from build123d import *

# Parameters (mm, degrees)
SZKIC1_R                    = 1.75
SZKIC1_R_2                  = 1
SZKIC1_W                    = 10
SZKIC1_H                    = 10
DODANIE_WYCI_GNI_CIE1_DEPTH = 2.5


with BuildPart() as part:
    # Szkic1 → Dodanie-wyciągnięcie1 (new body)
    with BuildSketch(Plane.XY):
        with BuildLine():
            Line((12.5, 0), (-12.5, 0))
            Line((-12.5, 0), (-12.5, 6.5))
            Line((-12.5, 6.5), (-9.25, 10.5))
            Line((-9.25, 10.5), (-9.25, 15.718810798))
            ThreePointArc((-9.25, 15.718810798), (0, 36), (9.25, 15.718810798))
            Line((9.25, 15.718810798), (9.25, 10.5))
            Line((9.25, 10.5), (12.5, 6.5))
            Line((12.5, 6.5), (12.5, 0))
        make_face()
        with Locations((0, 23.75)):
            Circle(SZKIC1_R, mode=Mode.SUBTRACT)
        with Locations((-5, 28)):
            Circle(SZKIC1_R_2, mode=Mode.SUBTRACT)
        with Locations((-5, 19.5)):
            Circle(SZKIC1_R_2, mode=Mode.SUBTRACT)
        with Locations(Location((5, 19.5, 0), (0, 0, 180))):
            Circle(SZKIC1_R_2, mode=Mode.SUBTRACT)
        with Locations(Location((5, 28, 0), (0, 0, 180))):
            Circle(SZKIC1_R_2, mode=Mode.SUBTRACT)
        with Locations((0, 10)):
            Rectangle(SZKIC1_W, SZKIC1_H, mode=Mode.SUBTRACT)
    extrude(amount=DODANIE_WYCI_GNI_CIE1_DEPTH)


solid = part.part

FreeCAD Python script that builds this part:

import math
import FreeCAD as App
import Part
import Sketcher
from FreeCAD import Vector


def add_polygon(sketch, points):
    """Adds a closed chain of lines whose ends are joined by coincident constraints."""
    first, n = sketch.GeometryCount, len(points)
    for a, b in zip(points, points[1:] + points[:1]):
        sketch.addGeometry(Part.LineSegment(App.Vector(*a, 0), App.Vector(*b, 0)), False)
    for i in range(n):
        sketch.addConstraint(Sketcher.Constraint("Coincident", first + i, 2, first + (i + 1) % n, 1))

doc = App.newDocument("Part")
body = doc.addObject("PartDesign::Body", "Body")

# Sketch on XY plane
sketch1 = body.newObject("Sketcher::SketchObject", "Sketch")
sketch1.AttachmentSupport = (doc.getObject("XY_Plane"), [""])
sketch1.MapMode = "FlatFace"
sketch1.addGeometry(Part.LineSegment(Vector(-12.5, 0, 0), Vector(12.5, 0, 0)), False)  # 0
sketch1.addGeometry(Part.LineSegment(Vector(12.5, 0, 0), Vector(12.5, 6.5, 0)), False)  # 1
sketch1.addGeometry(Part.LineSegment(Vector(12.5, 6.5, 0), Vector(9.2, 10.5, 0)), False)  # 2
sketch1.addGeometry(Part.LineSegment(Vector(9.2, 10.5, 0), Vector(9.2, 15.7, 0)), False)  # 3
sketch1.addGeometry(Part.ArcOfCircle(Part.Circle(Vector(0, 23.8, 0), Vector(0, 0, 1), 12.2), math.radians(-41), math.radians(221)), False)  # 4
sketch1.addGeometry(Part.LineSegment(Vector(-9.2, 15.7, 0), Vector(-9.2, 10.5, 0)), False)  # 5
sketch1.addGeometry(Part.LineSegment(Vector(-9.2, 10.5, 0), Vector(-12.5, 6.5, 0)), False)  # 6
sketch1.addGeometry(Part.LineSegment(Vector(-12.5, 6.5, 0), Vector(-12.5, 0, 0)), False)  # 7
add_polygon(sketch1, [(-5, 5), (-5, 15), (5, 15), (5, 5)])  # lines 8-11
sketch1.addGeometry(Part.Circle(Vector(5, 19.5, 0), Vector(0, 0, 1), 1), False)  # 12
sketch1.addGeometry(Part.Circle(Vector(5, 28, 0), Vector(0, 0, 1), 1), False)  # 13
sketch1.addGeometry(Part.Circle(Vector(-5, 19.5, 0), Vector(0, 0, 1), 1), False)  # 14
sketch1.addGeometry(Part.Circle(Vector(0, 23.8, 0), Vector(0, 0, 1), 1.8), False)  # 15
sketch1.addGeometry(Part.Circle(Vector(-5, 28, 0), Vector(0, 0, 1), 1), False)  # 16
sketch1.addConstraint([
    Sketcher.Constraint("Coincident", 0, 2, 1, 1),
    Sketcher.Constraint("Coincident", 1, 2, 2, 1),
    Sketcher.Constraint("Coincident", 2, 2, 3, 1),
    Sketcher.Constraint("Coincident", 3, 2, 4, 1),
    Sketcher.Constraint("Coincident", 4, 2, 5, 1),
    Sketcher.Constraint("Coincident", 5, 2, 6, 1),
    Sketcher.Constraint("Coincident", 6, 2, 7, 1),
    Sketcher.Constraint("Coincident", 7, 2, 0, 1),
    Sketcher.Constraint("Horizontal", 0),
    Sketcher.Constraint("Vertical", 1),
    Sketcher.Constraint("Vertical", 3),
    Sketcher.Constraint("Vertical", 5),
    Sketcher.Constraint("Vertical", 7),
    Sketcher.Constraint("Vertical", 8),
    Sketcher.Constraint("Horizontal", 9),
    Sketcher.Constraint("Vertical", 10),
    Sketcher.Constraint("Horizontal", 11),
    Sketcher.Constraint("Coincident", 15, 3, 4, 3),
    Sketcher.Constraint("Equal", 12, 13),
    Sketcher.Constraint("Equal", 13, 14),
    Sketcher.Constraint("Equal", 14, 16),
    Sketcher.Constraint("Symmetric", 0, 2, 7, 2, -1, 1),
    Sketcher.Constraint("Symmetric", 12, 3, 14, 3, -2),
    Sketcher.Constraint("Symmetric", 13, 3, 16, 3, -2),
    Sketcher.Constraint("Symmetric", 3, 2, 4, 2, -2),
    Sketcher.Constraint("Horizontal", 2, 2, 5, 2),
    Sketcher.Constraint("Horizontal", 1, 2, 6, 2),
    Sketcher.Constraint("Vertical", 12, 3, 13, 3),
    Sketcher.Constraint("Vertical", 16, 3, 8, 2),
    Sketcher.Constraint("Vertical", 13, 3, 9, 2),
    Sketcher.Constraint("Equal", 11, 8),
    Sketcher.Constraint("Diameter", 12, 2.0),
    Sketcher.Constraint("Diameter", 15, 3.5),
    Sketcher.Constraint("DistanceX", 0, 1, 0, 2, 25.0),
    Sketcher.Constraint("DistanceX", 9, 1, 9, 2, 10.0),
    Sketcher.Constraint("Radius", 4, 12.25),
    Sketcher.Constraint("DistanceY", 1, 1, 1, 2, 6.5),
    Sketcher.Constraint("DistanceY", -1, 1, 13, 3, 28.0),
    Sketcher.Constraint("DistanceY", -1, 1, 8, 2, 15.0),
    Sketcher.Constraint("DistanceY", 1, 2, 12, 3, 13.0),
    Sketcher.Constraint("DistanceY", 1, 2, 2, 2, 4.0),
    Sketcher.Constraint("DistanceY", -1, 1, 4, 3, 23.75),
    Sketcher.Constraint("DistanceX", -1, 1, 2, 2, 9.25),
])
pad1 = body.newObject("PartDesign::Pad", "Pad")
pad1.Profile = sketch1
pad1.Length = 2.5

doc.recompute()
